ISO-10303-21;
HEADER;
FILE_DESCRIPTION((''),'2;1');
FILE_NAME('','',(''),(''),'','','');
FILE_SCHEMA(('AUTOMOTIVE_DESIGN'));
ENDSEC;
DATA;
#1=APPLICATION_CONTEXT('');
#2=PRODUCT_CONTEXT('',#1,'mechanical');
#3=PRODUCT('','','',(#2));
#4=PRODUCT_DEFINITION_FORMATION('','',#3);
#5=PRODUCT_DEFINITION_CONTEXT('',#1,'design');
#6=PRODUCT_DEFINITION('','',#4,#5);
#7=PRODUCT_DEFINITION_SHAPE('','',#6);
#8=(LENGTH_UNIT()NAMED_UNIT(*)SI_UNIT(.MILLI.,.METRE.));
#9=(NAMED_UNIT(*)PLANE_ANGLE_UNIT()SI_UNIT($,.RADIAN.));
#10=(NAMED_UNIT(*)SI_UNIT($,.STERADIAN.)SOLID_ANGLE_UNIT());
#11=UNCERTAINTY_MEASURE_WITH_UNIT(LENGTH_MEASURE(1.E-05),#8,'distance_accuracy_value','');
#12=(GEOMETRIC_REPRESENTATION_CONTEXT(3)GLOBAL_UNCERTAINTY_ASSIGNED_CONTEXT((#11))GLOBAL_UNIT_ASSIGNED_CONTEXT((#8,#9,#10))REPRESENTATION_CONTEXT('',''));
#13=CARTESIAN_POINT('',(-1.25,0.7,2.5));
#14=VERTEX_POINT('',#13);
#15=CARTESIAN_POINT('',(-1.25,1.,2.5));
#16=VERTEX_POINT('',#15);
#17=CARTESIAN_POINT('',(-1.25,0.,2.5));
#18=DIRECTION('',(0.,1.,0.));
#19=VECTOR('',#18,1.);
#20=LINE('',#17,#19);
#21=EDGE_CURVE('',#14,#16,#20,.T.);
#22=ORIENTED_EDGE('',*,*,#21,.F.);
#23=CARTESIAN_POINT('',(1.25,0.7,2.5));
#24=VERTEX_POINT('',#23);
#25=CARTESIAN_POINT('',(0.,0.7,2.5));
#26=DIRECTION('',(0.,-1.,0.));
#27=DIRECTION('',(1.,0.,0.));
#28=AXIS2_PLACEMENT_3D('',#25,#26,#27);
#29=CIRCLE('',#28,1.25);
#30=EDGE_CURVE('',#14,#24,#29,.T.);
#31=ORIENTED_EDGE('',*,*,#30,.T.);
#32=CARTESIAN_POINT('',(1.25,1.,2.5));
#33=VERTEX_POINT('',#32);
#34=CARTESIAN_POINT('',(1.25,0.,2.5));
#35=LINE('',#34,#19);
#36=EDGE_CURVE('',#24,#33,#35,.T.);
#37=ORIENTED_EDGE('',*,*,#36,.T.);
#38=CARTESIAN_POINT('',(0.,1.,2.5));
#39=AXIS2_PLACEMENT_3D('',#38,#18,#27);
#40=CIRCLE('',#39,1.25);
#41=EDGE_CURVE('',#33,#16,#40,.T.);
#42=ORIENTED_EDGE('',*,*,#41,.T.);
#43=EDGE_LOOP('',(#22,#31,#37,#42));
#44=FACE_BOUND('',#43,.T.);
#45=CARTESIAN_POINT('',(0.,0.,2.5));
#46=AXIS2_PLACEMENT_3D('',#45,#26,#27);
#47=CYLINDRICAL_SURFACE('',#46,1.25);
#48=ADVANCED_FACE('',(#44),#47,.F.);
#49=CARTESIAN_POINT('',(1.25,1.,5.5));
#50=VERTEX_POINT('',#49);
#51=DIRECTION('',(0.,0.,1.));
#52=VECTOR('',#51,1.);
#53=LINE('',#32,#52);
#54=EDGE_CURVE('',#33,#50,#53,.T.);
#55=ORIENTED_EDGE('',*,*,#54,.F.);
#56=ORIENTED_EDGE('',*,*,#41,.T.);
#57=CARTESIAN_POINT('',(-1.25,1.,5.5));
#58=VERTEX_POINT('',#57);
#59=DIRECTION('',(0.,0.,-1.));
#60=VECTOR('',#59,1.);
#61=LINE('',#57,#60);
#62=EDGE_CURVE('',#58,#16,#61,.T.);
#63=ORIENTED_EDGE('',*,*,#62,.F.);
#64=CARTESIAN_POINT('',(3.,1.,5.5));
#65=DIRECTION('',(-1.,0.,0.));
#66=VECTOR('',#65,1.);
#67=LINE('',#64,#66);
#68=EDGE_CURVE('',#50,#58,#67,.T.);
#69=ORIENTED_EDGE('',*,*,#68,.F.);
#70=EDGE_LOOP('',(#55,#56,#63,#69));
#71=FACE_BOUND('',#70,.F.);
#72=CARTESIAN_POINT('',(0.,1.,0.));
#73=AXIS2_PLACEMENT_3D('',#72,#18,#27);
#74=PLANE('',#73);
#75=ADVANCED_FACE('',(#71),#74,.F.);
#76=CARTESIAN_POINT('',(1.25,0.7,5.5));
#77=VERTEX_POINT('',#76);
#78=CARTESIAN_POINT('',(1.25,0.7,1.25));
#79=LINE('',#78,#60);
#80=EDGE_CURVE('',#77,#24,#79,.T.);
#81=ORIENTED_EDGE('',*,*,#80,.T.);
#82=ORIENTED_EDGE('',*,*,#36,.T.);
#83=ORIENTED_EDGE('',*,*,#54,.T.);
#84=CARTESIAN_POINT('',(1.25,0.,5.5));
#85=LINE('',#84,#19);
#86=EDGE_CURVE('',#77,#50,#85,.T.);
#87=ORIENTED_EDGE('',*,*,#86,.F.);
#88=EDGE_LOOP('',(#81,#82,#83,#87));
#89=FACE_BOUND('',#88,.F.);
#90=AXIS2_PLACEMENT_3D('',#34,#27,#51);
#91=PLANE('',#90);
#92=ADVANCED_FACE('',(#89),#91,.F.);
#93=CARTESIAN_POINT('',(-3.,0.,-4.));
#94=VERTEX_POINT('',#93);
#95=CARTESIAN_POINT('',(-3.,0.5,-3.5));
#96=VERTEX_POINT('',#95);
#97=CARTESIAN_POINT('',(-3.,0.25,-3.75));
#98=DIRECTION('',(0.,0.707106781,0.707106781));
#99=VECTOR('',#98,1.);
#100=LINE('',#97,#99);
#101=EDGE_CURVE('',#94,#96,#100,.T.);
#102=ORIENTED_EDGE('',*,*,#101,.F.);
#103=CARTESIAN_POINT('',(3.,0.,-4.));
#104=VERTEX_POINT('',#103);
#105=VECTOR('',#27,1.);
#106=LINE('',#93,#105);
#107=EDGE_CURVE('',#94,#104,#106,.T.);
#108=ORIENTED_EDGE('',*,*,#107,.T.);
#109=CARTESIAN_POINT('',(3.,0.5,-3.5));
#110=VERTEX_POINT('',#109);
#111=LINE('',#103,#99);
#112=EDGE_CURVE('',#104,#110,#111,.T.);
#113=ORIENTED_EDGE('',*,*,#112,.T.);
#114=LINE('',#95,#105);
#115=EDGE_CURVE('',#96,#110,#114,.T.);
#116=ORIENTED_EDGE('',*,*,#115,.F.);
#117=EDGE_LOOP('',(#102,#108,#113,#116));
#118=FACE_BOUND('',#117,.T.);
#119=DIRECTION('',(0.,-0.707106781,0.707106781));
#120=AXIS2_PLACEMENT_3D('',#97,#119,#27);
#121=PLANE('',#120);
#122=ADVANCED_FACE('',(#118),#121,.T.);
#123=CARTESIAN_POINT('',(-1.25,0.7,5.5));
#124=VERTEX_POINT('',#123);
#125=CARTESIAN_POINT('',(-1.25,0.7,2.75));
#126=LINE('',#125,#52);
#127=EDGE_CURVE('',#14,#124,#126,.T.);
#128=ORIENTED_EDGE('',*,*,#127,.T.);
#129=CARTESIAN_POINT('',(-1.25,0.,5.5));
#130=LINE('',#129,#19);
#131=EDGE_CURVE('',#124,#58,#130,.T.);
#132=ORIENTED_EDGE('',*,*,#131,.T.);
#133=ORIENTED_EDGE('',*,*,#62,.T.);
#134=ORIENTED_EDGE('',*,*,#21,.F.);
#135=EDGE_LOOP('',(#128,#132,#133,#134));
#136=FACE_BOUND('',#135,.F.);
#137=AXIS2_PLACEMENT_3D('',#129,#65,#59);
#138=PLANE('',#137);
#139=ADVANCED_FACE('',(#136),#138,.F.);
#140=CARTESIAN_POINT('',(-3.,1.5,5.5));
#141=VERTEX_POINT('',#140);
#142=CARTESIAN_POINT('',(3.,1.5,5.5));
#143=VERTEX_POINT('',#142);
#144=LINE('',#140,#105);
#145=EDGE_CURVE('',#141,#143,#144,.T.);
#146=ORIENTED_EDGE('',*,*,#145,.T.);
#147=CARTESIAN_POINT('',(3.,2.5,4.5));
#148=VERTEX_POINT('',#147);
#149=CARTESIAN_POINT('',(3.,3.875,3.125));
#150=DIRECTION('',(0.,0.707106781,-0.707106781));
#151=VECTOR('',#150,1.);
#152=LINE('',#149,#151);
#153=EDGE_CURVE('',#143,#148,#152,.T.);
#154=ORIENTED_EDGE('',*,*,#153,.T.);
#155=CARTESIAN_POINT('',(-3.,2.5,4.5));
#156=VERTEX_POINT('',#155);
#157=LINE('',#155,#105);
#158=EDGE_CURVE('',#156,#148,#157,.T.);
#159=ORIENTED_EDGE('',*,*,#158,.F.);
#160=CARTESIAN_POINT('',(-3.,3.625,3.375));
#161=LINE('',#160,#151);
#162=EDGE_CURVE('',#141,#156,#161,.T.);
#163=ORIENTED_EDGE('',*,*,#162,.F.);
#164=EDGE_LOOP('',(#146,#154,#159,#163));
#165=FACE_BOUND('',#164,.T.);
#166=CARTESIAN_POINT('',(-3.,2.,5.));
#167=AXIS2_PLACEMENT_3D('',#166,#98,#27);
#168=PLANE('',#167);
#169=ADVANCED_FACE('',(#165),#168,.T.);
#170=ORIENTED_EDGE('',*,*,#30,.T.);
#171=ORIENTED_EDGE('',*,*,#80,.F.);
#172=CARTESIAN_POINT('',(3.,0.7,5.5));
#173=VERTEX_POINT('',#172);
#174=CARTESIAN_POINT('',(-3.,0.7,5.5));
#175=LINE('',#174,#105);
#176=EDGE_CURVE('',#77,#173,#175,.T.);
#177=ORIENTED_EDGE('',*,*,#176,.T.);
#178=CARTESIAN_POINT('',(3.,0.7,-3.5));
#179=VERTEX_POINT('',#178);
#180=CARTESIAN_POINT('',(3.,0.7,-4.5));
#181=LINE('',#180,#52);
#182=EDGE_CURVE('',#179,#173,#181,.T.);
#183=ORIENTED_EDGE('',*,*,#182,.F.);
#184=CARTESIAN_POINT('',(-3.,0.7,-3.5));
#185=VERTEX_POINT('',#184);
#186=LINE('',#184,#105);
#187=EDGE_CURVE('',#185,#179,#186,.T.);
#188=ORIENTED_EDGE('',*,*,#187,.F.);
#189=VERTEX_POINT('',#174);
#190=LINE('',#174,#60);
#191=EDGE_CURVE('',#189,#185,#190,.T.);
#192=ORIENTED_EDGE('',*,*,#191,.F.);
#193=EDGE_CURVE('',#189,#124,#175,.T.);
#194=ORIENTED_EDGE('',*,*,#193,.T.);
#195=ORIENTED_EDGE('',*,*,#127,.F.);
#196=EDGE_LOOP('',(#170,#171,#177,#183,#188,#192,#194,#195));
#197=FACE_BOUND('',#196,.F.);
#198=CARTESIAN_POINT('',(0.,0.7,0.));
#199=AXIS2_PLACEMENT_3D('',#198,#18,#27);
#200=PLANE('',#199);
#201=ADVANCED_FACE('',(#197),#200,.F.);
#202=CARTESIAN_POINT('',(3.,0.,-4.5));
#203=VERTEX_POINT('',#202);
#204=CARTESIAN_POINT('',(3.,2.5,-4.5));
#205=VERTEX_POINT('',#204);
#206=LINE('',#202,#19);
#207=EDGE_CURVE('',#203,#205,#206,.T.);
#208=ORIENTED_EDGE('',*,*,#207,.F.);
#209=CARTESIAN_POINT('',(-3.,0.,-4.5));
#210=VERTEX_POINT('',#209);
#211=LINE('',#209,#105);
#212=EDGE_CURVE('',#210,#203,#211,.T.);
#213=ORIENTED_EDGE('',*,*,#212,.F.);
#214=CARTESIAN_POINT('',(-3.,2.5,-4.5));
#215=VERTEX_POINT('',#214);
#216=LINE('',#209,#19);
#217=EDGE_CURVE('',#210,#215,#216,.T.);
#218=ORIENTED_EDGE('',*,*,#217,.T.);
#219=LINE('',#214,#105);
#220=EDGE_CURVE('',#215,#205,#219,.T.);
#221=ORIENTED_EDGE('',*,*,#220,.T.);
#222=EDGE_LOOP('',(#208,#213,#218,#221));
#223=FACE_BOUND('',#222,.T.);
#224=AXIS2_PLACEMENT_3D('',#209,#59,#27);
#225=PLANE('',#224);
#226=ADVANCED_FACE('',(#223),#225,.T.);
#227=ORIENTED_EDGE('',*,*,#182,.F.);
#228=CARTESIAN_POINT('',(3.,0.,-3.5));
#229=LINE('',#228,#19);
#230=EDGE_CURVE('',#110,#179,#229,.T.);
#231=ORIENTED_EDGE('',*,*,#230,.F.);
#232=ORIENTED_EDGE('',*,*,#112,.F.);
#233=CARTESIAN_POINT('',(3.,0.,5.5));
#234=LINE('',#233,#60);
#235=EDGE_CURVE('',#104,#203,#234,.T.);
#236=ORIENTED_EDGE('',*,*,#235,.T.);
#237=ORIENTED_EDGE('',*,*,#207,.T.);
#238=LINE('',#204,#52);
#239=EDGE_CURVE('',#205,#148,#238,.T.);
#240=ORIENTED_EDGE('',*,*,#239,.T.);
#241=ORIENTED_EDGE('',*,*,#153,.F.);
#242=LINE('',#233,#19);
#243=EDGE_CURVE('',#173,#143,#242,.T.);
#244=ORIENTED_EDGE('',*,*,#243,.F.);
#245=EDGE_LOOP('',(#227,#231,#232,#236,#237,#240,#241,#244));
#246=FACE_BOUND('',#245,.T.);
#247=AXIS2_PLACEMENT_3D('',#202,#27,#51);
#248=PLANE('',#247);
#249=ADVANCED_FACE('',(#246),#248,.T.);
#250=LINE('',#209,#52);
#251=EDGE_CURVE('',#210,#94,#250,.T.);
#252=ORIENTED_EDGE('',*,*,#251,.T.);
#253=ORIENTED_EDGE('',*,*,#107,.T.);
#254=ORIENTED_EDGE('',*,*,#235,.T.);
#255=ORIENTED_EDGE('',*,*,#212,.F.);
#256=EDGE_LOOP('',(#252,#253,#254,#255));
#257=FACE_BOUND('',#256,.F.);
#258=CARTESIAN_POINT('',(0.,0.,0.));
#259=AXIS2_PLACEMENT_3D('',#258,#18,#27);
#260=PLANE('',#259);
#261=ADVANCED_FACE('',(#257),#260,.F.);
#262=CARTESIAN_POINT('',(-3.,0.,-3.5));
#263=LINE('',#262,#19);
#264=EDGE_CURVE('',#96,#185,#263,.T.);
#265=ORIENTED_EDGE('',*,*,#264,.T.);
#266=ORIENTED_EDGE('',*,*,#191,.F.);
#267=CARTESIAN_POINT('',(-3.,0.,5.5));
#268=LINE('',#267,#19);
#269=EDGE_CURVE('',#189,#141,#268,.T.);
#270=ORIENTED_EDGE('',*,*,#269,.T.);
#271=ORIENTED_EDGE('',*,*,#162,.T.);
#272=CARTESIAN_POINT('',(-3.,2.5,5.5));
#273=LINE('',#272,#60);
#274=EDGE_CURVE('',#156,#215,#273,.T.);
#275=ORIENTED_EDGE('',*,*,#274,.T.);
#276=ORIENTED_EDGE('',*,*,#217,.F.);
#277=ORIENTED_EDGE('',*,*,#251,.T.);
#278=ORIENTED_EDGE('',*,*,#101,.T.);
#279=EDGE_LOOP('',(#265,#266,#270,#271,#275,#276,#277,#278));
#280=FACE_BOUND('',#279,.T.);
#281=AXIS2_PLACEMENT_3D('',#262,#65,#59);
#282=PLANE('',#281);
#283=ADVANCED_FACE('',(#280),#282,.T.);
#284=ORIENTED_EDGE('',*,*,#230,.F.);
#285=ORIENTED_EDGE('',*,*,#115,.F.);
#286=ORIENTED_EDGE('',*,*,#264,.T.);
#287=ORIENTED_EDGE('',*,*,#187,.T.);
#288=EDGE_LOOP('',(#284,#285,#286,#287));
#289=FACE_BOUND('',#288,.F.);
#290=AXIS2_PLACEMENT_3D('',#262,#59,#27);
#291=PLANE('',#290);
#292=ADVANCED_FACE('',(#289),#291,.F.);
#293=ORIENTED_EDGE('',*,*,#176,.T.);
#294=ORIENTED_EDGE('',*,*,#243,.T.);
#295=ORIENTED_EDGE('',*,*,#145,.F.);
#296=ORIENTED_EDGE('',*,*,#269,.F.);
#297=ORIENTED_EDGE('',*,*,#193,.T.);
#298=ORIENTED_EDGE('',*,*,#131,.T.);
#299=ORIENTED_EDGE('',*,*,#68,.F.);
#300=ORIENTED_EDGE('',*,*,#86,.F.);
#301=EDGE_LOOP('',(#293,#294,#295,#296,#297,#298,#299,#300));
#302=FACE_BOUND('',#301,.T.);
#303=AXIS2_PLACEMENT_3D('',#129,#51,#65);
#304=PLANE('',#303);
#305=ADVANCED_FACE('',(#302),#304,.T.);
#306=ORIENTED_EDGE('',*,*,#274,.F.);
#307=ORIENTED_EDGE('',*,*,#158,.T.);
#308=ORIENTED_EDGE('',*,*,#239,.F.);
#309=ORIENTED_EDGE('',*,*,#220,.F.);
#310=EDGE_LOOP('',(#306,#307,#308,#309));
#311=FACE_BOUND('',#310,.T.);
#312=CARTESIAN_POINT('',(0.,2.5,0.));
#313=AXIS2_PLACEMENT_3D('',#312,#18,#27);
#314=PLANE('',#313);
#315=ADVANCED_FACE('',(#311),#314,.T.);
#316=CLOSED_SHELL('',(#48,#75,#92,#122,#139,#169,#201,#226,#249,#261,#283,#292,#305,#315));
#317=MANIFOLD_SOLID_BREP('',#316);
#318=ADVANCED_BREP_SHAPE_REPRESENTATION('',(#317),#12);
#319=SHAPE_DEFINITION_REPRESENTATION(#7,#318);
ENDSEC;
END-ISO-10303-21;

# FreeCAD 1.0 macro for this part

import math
import FreeCAD as App
import Part
import Sketcher

V = App.Vector
Q = App.Units.Quantity


def edges_at(feature, points):
    """Names of the edges that pass closest to the given points."""
    edges = feature.Shape.Edges
    near = lambda p: min(range(len(edges)), key=lambda i: edges[i].distToShape(Part.Vertex(*p))[0])
    return sorted({f"Edge{near(p) + 1}" for p in points})


def add_polygon(sketch, points):
    """Adds a closed chain of lines whose ends are joined by coincident constraints."""
    first, n = sketch.GeometryCount, len(points)
    for a, b in zip(points, points[1:] + points[:1]):
        sketch.addGeometry(Part.LineSegment(App.Vector(*a, 0), App.Vector(*b, 0)), False)
    for i in range(n):
        sketch.addConstraint(Sketcher.Constraint("Coincident", first + i, 2, first + (i + 1) % n, 1))

doc = App.newDocument("Part")
body = doc.addObject("PartDesign::Body", "Body")

# Sketch on XZ plane
sketch1 = body.newObject("Sketcher::SketchObject", "Sketch")
sketch1.AttachmentSupport = (doc.getObject("XZ_Plane"), [""])
sketch1.MapMode = "FlatFace"
add_polygon(sketch1, [(3, -4.5), (-3, -4.5), (-3, 5.5), (3, 5.5)])  # lines 0-3
sketch1.addConstraint(Sketcher.Constraint("Horizontal", 0))
sketch1.addConstraint(Sketcher.Constraint("Vertical", 1))
sketch1.addConstraint(Sketcher.Constraint("Horizontal", 2))
sketch1.addConstraint(Sketcher.Constraint("Vertical", 3))
sketch1.addConstraint(Sketcher.Constraint("DistanceX", 0, 2, 0, 1, Q("6 mm")))
sketch1.addConstraint(Sketcher.Constraint("DistanceY", 1, 1, 1, 2, Q("10 mm")))
sketch1.addConstraint(Sketcher.Constraint("DistanceX", 0, 2, -1, 1, Q("3 mm")))
sketch1.addConstraint(Sketcher.Constraint("DistanceY", 0, 2, -1, 1, Q("4.5 mm")))
pad1 = body.newObject("PartDesign::Pad", "Pad")
pad1.Profile = sketch1
pad1.Length = 2.5
pad1.Reversed = True

# Sketch on XZ plane
sketch2 = body.newObject("Sketcher::SketchObject", "Sketch001")
sketch2.AttachmentSupport = (doc.getObject("XZ_Plane"), [""])
sketch2.MapMode = "FlatFace"
add_polygon(sketch2, [(3, -3.5), (-3, -3.5), (-3, 5.5), (3, 5.5)])  # lines 0-3
sketch2.addConstraint(Sketcher.Constraint("Horizontal", 0))
sketch2.addConstraint(Sketcher.Constraint("Vertical", 1))
sketch2.addConstraint(Sketcher.Constraint("Horizontal", 2))
sketch2.addConstraint(Sketcher.Constraint("Vertical", 3))
sketch2.addConstraint(Sketcher.Constraint("DistanceX", 0, 2, 0, 1, Q("6 mm")))
sketch2.addConstraint(Sketcher.Constraint("DistanceX", 0, 2, -1, 1, Q("3 mm")))
sketch2.addConstraint(Sketcher.Constraint("DistanceY", 1, 1, 1, 2, Q("9 mm")))
sketch2.addConstraint(Sketcher.Constraint("DistanceY", 0, 2, -1, 1, Q("3.5 mm")))
pocket1 = body.newObject("PartDesign::Pocket", "Pocket")
pocket1.Profile = sketch2
pocket1.Length = 0.7

# Sketch on XZ plane
sketch3 = body.newObject("Sketcher::SketchObject", "Sketch002")
sketch3.AttachmentSupport = (doc.getObject("XZ_Plane"), [""])
sketch3.MapMode = "FlatFace"
sketch3.addGeometry(Part.LineSegment(V(-1.25, 2.5, 0), V(-1.25, 5.5, 0)), False)
sketch3.addGeometry(Part.LineSegment(V(-1.25, 5.5, 0), V(1.25, 5.5, 0)), False)
sketch3.addGeometry(Part.LineSegment(V(1.25, 5.5, 0), V(1.25, 2.5, 0)), False)
sketch3.addGeometry(Part.ArcOfCircle(Part.Circle(V(0, 2.5, 0), V(0, 0, 1), 1.25), math.radians(180), math.radians(360)), False)
sketch3.addConstraint(Sketcher.Constraint("Coincident", 0, 2, 1, 1))
sketch3.addConstraint(Sketcher.Constraint("Coincident", 1, 2, 2, 1))
sketch3.addConstraint(Sketcher.Constraint("Tangent", 2, 2, 3, 2))
sketch3.addConstraint(Sketcher.Constraint("Tangent", 3, 1, 0, 1))
sketch3.addConstraint(Sketcher.Constraint("Vertical", 0))
sketch3.addConstraint(Sketcher.Constraint("Horizontal", 1))
sketch3.addConstraint(Sketcher.Constraint("Vertical", 2))
sketch3.addConstraint(Sketcher.Constraint("PointOnObject", 3, 3, -2))
sketch3.addConstraint(Sketcher.Constraint("DistanceY", 0, 1, 0, 2, Q("3 mm")))
sketch3.addConstraint(Sketcher.Constraint("Radius", 3, Q("1.25 mm")))
sketch3.addConstraint(Sketcher.Constraint("DistanceY", -1, 1, 3, 3, Q("2.5 mm")))
pocket2 = body.newObject("PartDesign::Pocket", "Pocket001")
pocket2.Profile = sketch3
pocket2.Length = 1

# Sketch on XZ plane
sketch4 = body.newObject("Sketcher::SketchObject", "Sketch003")
sketch4.AttachmentSupport = (doc.getObject("XZ_Plane"), [""])
sketch4.MapMode = "FlatFace"
sketch4.addGeometry(Part.Circle(V(0, 0, 0), V(0, 0, 1), 1.2), False)
sketch4.addConstraint(Sketcher.Constraint("Coincident", 0, 3, -1, 1))
sketch4.addConstraint(Sketcher.Constraint("Diameter", 0, Q("2.4 mm")))
doc.recompute()
hole = body.newObject("PartDesign::Hole", "Hole")
hole.Profile = sketch4
hole.ThreadType = "None"
hole.Diameter = 2.4
hole.DepthType = "Dimension"
hole.Depth = 5
hole.DrillPoint = "Angled"
hole.DrillPointAngle = 118
hole.Reversed = True
doc.recompute()

chamfer = body.newObject("PartDesign::Chamfer", "Chamfer")
chamfer.Base = (hole, edges_at(hole, [(0, 0, -3.5)]))
chamfer.Size = 0.5
doc.recompute()

chamfer2 = body.newObject("PartDesign::Chamfer", "Chamfer001")
chamfer2.Base = (chamfer, edges_at(chamfer, [(0, 2.5, 5.5)]))
chamfer2.Size = 1

doc.recompute()
